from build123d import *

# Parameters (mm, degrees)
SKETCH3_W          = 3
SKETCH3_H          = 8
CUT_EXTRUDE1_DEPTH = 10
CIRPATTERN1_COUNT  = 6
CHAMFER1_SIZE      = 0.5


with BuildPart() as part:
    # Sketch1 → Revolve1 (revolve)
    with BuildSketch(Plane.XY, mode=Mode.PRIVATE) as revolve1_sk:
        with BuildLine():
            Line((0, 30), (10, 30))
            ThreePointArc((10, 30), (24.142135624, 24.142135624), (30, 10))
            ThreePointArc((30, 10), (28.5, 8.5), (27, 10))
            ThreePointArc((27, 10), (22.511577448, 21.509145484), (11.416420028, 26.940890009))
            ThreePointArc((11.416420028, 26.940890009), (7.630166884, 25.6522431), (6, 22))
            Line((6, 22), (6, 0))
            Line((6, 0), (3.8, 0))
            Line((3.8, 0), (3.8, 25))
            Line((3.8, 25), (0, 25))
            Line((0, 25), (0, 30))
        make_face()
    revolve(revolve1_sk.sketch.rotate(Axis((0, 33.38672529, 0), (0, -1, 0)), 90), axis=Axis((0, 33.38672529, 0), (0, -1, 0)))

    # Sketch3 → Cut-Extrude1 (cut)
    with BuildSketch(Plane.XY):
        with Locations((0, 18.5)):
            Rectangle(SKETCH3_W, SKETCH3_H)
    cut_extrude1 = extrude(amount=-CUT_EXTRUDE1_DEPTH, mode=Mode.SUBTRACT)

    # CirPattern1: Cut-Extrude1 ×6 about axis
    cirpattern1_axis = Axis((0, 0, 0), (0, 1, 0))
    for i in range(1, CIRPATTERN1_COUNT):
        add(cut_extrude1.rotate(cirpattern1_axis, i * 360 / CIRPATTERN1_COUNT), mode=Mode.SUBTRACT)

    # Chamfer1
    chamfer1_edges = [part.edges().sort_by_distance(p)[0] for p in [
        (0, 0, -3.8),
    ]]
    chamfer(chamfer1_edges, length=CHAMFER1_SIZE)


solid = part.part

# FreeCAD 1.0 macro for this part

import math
import FreeCAD as App
import Part
import Sketcher

V = App.Vector
Q = App.Units.Quantity


def edges_at(feature, points):
    """Names of the edges that pass closest to the given points."""
    edges = feature.Shape.Edges
    near = lambda p: min(range(len(edges)), key=lambda i: edges[i].distToShape(Part.Vertex(*p))[0])
    return sorted({f"Edge{near(p) + 1}" for p in points})


def add_polygon(sketch, points):
    """Adds a closed chain of lines whose ends are joined by coincident constraints."""
    first, n = sketch.GeometryCount, len(points)
    for a, b in zip(points, points[1:] + points[:1]):
        sketch.addGeometry(Part.LineSegment(App.Vector(*a, 0), App.Vector(*b, 0)), False)
    for i in range(n):
        sketch.addConstraint(Sketcher.Constraint("Coincident", first + i, 2, first + (i + 1) % n, 1))

doc = App.newDocument("Part")
body = doc.addObject("PartDesign::Body", "Body")

sketch1 = doc.addObject("Sketcher::SketchObject", "Sketch")
body.addObject(sketch1)
sketch1.AttachmentSupport = (doc.XY_Plane, [""])
sketch1.MapMode = "FlatFace"
sketch1.addGeometry(Part.LineSegment(V(10, 30, 0), V(0, 30, 0)), False)
sketch1.addGeometry(Part.LineSegment(V(0, 30, 0), V(0, 25, 0)), False)
sketch1.addGeometry(Part.LineSegment(V(0, 25, 0), V(3.8, 25, 0)), False)
sketch1.addGeometry(Part.LineSegment(V(3.8, 25, 0), V(3.8, 0, 0)), False)
sketch1.addGeometry(Part.LineSegment(V(3.8, 0, 0), V(6, 0, 0)), False)
sketch1.addGeometry(Part.LineSegment(V(6, 0, 0), V(6, 22, 0)), False)
sketch1.addGeometry(Part.ArcOfCircle(Part.Circle(V(11, 22, 0), V(0, 0, 1), 5), math.radians(85), math.radians(180)), False)
sketch1.addGeometry(Part.ArcOfCircle(Part.Circle(V(10, 10, 0), V(0, 0, 1), 17), math.radians(0), math.radians(85)), False)
sketch1.addGeometry(Part.ArcOfCircle(Part.Circle(V(28.5, 10, 0), V(0, 0, 1), 1.5), math.radians(180), math.radians(360)), False)
sketch1.addGeometry(Part.ArcOfCircle(Part.Circle(V(10, 10, 0), V(0, 0, 1), 20), math.radians(0), math.radians(90)), False)
sketch1.addConstraint(Sketcher.Constraint("Coincident", 0, 2, 1, 1))
sketch1.addConstraint(Sketcher.Constraint("Coincident", 1, 2, 2, 1))
sketch1.addConstraint(Sketcher.Constraint("Coincident", 2, 2, 3, 1))
sketch1.addConstraint(Sketcher.Constraint("Coincident", 3, 2, 4, 1))
sketch1.addConstraint(Sketcher.Constraint("Coincident", 4, 2, 5, 1))
sketch1.addConstraint(Sketcher.Constraint("Coincident", 5, 2, 6, 2))
sketch1.addConstraint(Sketcher.Constraint("Tangent", 6, 1, 7, 2))
sketch1.addConstraint(Sketcher.Constraint("Tangent", 7, 1, 8, 1))
sketch1.addConstraint(Sketcher.Constraint("Tangent", 8, 2, 9, 1))
sketch1.addConstraint(Sketcher.Constraint("Tangent", 9, 2, 0, 1))
sketch1.addConstraint(Sketcher.Constraint("Horizontal", 0))
sketch1.addConstraint(Sketcher.Constraint("Vertical", 1))
sketch1.addConstraint(Sketcher.Constraint("Horizontal", 2))
sketch1.addConstraint(Sketcher.Constraint("Vertical", 3))
sketch1.addConstraint(Sketcher.Constraint("Horizontal", 4))
sketch1.addConstraint(Sketcher.Constraint("Vertical", 5))
sketch1.addConstraint(Sketcher.Constraint("Coincident", 9, 3, 7, 3))
sketch1.addConstraint(Sketcher.Constraint("PointOnObject", 0, 2, -2))
sketch1.addConstraint(Sketcher.Constraint("PointOnObject", 3, 2, -1))
sketch1.addConstraint(Sketcher.Constraint("Horizontal", 7, 3, 8, 3))
sketch1.addConstraint(Sketcher.Constraint("Radius", 6, Q("5 mm")))
sketch1.addConstraint(Sketcher.Constraint("Radius", 7, Q("17 mm")))
sketch1.addConstraint(Sketcher.Constraint("Radius", 9, Q("20 mm")))
sketch1.addConstraint(Sketcher.Constraint("DistanceX", 0, 2, 0, 1, Q("10 mm")))
sketch1.addConstraint(Sketcher.Constraint("DistanceY", 1, 2, 1, 1, Q("5 mm")))
sketch1.addConstraint(Sketcher.Constraint("DistanceY", 3, 2, 3, 1, Q("25 mm")))
sketch1.addConstraint(Sketcher.Constraint("DistanceY", 5, 1, 5, 2, Q("22 mm")))
sketch1.addConstraint(Sketcher.Constraint("DistanceX", 2, 1, 2, 2, Q("3.8 mm")))
sketch1.addConstraint(Sketcher.Constraint("DistanceX", 4, 1, 4, 2, Q("2.2 mm")))
revolution = doc.addObject("PartDesign::Revolution", "Revolution")
body.addObject(revolution)
revolution.Profile = sketch1
revolution.ReferenceAxis = (sketch1, ["V_Axis"])
revolution.Angle = 360

sketch2 = doc.addObject("Sketcher::SketchObject", "Sketch001")
body.addObject(sketch2)
sketch2.AttachmentSupport = (doc.XY_Plane, [""])
sketch2.MapMode = "FlatFace"
add_polygon(sketch2, [(-1.5, 22.5), (-1.5, 14.5), (1.5, 14.5), (1.5, 22.5)])
sketch2.addConstraint(Sketcher.Constraint("Vertical", 0))
sketch2.addConstraint(Sketcher.Constraint("Horizontal", 1))
sketch2.addConstraint(Sketcher.Constraint("Vertical", 2))
sketch2.addConstraint(Sketcher.Constraint("Horizontal", 3))
sketch2.addConstraint(Sketcher.Constraint("DistanceX", 1, 1, 1, 2, Q("3 mm")))
sketch2.addConstraint(Sketcher.Constraint("DistanceY", 0, 2, 0, 1, Q("8 mm")))
sketch2.addConstraint(Sketcher.Constraint("DistanceX", 0, 2, -1, 1, Q("1.5 mm")))
sketch2.addConstraint(Sketcher.Constraint("DistanceY", -1, 1, 0, 2, Q("14.5 mm")))
pocket1 = doc.addObject("PartDesign::Pocket", "Pocket")
body.addObject(pocket1)
pocket1.Profile = sketch2
pocket1.Length = 10
doc.recompute()

polarpattern = doc.addObject("PartDesign::PolarPattern", "PolarPattern")
body.addObject(polarpattern)
polarpattern.Originals = [pocket1]
polarpattern.Axis = (doc.Y_Axis, [""])
polarpattern.Angle = 360
polarpattern.Occurrences = 6
body.Tip = polarpattern
doc.recompute()

chamfer = doc.addObject("PartDesign::Chamfer", "Chamfer")
body.addObject(chamfer)
chamfer.Base = (polarpattern, edges_at(polarpattern, [(0, 0, -3.8)]))
chamfer.Size = 0.5

doc.recompute()
